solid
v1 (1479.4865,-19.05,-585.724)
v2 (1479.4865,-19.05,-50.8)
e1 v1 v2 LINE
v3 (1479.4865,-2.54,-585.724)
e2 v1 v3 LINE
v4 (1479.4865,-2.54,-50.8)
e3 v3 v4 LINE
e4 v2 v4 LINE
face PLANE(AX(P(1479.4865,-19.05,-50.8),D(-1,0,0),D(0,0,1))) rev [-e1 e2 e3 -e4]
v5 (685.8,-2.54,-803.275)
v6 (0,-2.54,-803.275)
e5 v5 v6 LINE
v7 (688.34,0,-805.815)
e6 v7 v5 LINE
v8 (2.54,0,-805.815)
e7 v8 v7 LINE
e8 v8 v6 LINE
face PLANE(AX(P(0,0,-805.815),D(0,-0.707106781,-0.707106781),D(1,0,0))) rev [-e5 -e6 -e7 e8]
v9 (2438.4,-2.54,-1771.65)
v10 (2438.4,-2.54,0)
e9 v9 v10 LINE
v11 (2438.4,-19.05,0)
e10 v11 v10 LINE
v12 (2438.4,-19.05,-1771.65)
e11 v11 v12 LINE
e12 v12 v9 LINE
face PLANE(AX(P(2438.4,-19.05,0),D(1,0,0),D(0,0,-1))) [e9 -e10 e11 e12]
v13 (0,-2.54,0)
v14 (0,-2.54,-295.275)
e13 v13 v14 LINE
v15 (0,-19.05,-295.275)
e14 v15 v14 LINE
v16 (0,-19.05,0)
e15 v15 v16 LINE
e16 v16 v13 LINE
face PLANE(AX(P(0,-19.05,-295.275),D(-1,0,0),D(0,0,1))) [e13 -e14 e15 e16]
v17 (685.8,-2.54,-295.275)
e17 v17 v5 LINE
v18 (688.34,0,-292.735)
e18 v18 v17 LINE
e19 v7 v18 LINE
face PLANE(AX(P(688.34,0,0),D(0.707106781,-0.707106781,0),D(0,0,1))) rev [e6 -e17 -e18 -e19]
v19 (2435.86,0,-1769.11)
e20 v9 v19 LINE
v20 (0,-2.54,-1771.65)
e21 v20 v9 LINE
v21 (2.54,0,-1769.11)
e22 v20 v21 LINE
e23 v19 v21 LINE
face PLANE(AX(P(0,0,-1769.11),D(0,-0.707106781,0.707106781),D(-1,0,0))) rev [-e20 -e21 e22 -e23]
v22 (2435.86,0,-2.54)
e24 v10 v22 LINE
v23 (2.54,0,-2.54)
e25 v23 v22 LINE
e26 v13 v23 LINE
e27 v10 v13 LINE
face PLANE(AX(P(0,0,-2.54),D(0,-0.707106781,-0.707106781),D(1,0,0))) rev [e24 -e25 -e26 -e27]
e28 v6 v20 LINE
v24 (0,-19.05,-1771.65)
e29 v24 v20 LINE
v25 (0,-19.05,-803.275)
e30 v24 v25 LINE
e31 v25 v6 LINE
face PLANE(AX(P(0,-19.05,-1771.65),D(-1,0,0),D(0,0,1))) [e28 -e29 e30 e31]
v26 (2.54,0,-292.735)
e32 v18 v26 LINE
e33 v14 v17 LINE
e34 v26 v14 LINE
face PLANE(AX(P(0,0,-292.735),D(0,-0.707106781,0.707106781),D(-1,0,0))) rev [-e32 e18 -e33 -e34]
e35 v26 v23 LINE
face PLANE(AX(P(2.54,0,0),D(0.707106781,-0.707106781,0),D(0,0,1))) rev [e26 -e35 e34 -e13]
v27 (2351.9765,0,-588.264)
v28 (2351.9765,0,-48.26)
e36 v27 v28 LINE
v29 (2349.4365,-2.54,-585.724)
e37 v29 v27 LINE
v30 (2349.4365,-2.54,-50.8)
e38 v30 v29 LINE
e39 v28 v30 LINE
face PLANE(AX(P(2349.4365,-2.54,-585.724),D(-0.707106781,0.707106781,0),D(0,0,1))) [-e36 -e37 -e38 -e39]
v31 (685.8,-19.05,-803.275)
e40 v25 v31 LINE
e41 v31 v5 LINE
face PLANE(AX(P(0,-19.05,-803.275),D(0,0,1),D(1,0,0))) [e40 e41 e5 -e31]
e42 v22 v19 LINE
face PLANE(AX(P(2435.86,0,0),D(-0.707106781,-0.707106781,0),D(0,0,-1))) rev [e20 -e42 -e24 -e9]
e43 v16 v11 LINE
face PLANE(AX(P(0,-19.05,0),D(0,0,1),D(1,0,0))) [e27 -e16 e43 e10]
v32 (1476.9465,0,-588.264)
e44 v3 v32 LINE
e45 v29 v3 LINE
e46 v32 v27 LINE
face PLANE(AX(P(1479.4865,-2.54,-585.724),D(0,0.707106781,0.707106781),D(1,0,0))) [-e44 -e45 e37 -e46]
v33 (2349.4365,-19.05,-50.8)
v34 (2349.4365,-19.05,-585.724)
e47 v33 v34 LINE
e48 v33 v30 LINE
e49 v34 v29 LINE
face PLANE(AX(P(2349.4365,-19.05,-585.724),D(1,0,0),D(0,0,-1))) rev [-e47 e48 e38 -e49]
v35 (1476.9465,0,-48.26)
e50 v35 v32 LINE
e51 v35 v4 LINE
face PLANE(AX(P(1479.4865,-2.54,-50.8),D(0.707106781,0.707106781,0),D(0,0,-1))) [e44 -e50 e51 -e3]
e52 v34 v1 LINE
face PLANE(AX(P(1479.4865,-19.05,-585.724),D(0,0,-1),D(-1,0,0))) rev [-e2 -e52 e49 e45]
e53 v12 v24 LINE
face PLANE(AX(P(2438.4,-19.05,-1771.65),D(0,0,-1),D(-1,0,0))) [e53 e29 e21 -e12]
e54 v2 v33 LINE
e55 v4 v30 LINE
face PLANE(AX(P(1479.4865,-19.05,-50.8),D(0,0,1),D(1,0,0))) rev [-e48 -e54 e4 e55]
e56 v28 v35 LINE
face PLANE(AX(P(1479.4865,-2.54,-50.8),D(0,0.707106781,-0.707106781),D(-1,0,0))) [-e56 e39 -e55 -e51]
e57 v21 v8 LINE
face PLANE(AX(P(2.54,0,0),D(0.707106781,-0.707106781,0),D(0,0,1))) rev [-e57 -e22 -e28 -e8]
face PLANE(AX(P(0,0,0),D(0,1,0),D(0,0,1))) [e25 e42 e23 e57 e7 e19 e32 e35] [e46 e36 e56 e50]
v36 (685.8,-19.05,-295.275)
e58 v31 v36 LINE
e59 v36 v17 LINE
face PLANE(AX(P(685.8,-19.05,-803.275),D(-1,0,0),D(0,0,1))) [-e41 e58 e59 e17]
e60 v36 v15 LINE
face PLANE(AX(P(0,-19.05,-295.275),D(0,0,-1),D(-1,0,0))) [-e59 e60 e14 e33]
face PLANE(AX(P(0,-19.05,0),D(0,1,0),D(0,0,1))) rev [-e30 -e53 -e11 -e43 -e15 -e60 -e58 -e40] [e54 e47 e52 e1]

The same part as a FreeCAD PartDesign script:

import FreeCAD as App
import Part
import Sketcher

V = App.Vector
Q = App.Units.Quantity


def edges_at(feature, points):
    """Names of the edges that pass closest to the given points."""
    edges = feature.Shape.Edges
    near = lambda p: min(range(len(edges)), key=lambda i: edges[i].distToShape(Part.Vertex(*p))[0])
    return sorted({f"Edge{near(p) + 1}" for p in points})

doc = App.newDocument("Part")
body = doc.addObject("PartDesign::Body", "Body")

# Sketch on XZ plane
sketch1 = body.newObject("Sketcher::SketchObject", "Sketch")
sketch1.AttachmentSupport = (doc.getObject("XZ_Plane"), [""])
sketch1.MapMode = "FlatFace"
sketch1.addGeometry([
    Part.LineSegment(V(2438, 0, 0), V(2438, -1772, 0)),  # 0
    Part.LineSegment(V(2438, -1772, 0), V(0, -1772, 0)),  # 1
    Part.LineSegment(V(0, -1772, 0), V(0, -803, 0)),  # 2
    Part.LineSegment(V(0, -803, 0), V(686, -803, 0)),  # 3
    Part.LineSegment(V(686, -803, 0), V(686, -295, 0)),  # 4
    Part.LineSegment(V(686, -295, 0), V(0, -295, 0)),  # 5
    Part.LineSegment(V(0, -295, 0), V(0, 0, 0)),  # 6
    Part.LineSegment(V(0, 0, 0), V(2438, 0, 0)),  # 7
    Part.LineSegment(V(2349, -51, 0), V(1479, -51, 0)),  # 8
    Part.LineSegment(V(1479, -51, 0), V(1479, -586, 0)),  # 9
    Part.LineSegment(V(1479, -586, 0), V(2349, -586, 0)),  # 10
    Part.LineSegment(V(2349, -586, 0), V(2349, -51, 0)),  # 11
], False)
sketch1.addConstraint([
    Sketcher.Constraint("Coincident", 0, 2, 1, 1),
    Sketcher.Constraint("Coincident", 1, 2, 2, 1),
    Sketcher.Constraint("Coincident", 2, 2, 3, 1),
    Sketcher.Constraint("Coincident", 3, 2, 4, 1),
    Sketcher.Constraint("Coincident", 4, 2, 5, 1),
    Sketcher.Constraint("Coincident", 5, 2, 6, 1),
    Sketcher.Constraint("Coincident", 6, 2, 7, 1),
    Sketcher.Constraint("Coincident", 7, 2, 0, 1),
    Sketcher.Constraint("Coincident", 8, 2, 9, 1),
    Sketcher.Constraint("Coincident", 9, 2, 10, 1),
    Sketcher.Constraint("Coincident", 10, 2, 11, 1),
    Sketcher.Constraint("Coincident", 11, 2, 8, 1),
    Sketcher.Constraint("Vertical", 0),
    Sketcher.Constraint("Horizontal", 1),
    Sketcher.Constraint("Vertical", 2),
    Sketcher.Constraint("Horizontal", 3),
    Sketcher.Constraint("Vertical", 4),
    Sketcher.Constraint("Horizontal", 5),
    Sketcher.Constraint("Vertical", 6),
    Sketcher.Constraint("Horizontal", 7),
    Sketcher.Constraint("Horizontal", 8),
    Sketcher.Constraint("Vertical", 9),
    Sketcher.Constraint("Horizontal", 10),
    Sketcher.Constraint("Vertical", 11),
    Sketcher.Constraint("Coincident", 6, 2, -1, 1),
    Sketcher.Constraint("PointOnObject", 1, 2, -2),
    Sketcher.Constraint("DistanceX", 1, 2, 1, 1, Q("96 in")),
    Sketcher.Constraint("DistanceX", 3, 1, 3, 2, Q("27 in")),
    Sketcher.Constraint("DistanceY", 4, 1, 4, 2, Q("20 in")),
    Sketcher.Constraint("DistanceY", 8, 2, -1, 1, Q("2 in")),
    Sketcher.Constraint("DistanceX", 8, 2, 8, 1, Q("34.25 in")),
    Sketcher.Constraint("DistanceY", 0, 2, 0, 1, Q("69.75 in")),
    Sketcher.Constraint("DistanceY", 9, 2, 9, 1, Q("21.06 in")),
    Sketcher.Constraint("DistanceY", 2, 1, 2, 2, Q("38.125 in")),
    Sketcher.Constraint("DistanceX", -1, 1, 8, 2, Q("58.2475 in")),
])
pad1 = body.newObject("PartDesign::Pad", "Pad")
pad1.Profile = sketch1
pad1.Length = Q("0.75 in")
doc.recompute()

chamfer = body.newObject("PartDesign::Chamfer", "Chamfer")
chamfer.Base = (pad1, edges_at(pad1, [
    (0, 0, -1287.463),
    (1219.2, 0, -1771.65),
    (2438.4, 0, -885.825),
    (1219.2, 0, 0),
    (1914.461, 0, -585.724),
    (1479.486, 0, -318.262),
    (1914.461, 0, -50.8),
    (2349.436, 0, -318.262),
    (0, 0, -147.637),
    (342.9, 0, -295.275),
    (685.8, 0, -549.275),
    (342.9, 0, -803.275),
]))
chamfer.Size = Q("0.1 in")

doc.recompute()
